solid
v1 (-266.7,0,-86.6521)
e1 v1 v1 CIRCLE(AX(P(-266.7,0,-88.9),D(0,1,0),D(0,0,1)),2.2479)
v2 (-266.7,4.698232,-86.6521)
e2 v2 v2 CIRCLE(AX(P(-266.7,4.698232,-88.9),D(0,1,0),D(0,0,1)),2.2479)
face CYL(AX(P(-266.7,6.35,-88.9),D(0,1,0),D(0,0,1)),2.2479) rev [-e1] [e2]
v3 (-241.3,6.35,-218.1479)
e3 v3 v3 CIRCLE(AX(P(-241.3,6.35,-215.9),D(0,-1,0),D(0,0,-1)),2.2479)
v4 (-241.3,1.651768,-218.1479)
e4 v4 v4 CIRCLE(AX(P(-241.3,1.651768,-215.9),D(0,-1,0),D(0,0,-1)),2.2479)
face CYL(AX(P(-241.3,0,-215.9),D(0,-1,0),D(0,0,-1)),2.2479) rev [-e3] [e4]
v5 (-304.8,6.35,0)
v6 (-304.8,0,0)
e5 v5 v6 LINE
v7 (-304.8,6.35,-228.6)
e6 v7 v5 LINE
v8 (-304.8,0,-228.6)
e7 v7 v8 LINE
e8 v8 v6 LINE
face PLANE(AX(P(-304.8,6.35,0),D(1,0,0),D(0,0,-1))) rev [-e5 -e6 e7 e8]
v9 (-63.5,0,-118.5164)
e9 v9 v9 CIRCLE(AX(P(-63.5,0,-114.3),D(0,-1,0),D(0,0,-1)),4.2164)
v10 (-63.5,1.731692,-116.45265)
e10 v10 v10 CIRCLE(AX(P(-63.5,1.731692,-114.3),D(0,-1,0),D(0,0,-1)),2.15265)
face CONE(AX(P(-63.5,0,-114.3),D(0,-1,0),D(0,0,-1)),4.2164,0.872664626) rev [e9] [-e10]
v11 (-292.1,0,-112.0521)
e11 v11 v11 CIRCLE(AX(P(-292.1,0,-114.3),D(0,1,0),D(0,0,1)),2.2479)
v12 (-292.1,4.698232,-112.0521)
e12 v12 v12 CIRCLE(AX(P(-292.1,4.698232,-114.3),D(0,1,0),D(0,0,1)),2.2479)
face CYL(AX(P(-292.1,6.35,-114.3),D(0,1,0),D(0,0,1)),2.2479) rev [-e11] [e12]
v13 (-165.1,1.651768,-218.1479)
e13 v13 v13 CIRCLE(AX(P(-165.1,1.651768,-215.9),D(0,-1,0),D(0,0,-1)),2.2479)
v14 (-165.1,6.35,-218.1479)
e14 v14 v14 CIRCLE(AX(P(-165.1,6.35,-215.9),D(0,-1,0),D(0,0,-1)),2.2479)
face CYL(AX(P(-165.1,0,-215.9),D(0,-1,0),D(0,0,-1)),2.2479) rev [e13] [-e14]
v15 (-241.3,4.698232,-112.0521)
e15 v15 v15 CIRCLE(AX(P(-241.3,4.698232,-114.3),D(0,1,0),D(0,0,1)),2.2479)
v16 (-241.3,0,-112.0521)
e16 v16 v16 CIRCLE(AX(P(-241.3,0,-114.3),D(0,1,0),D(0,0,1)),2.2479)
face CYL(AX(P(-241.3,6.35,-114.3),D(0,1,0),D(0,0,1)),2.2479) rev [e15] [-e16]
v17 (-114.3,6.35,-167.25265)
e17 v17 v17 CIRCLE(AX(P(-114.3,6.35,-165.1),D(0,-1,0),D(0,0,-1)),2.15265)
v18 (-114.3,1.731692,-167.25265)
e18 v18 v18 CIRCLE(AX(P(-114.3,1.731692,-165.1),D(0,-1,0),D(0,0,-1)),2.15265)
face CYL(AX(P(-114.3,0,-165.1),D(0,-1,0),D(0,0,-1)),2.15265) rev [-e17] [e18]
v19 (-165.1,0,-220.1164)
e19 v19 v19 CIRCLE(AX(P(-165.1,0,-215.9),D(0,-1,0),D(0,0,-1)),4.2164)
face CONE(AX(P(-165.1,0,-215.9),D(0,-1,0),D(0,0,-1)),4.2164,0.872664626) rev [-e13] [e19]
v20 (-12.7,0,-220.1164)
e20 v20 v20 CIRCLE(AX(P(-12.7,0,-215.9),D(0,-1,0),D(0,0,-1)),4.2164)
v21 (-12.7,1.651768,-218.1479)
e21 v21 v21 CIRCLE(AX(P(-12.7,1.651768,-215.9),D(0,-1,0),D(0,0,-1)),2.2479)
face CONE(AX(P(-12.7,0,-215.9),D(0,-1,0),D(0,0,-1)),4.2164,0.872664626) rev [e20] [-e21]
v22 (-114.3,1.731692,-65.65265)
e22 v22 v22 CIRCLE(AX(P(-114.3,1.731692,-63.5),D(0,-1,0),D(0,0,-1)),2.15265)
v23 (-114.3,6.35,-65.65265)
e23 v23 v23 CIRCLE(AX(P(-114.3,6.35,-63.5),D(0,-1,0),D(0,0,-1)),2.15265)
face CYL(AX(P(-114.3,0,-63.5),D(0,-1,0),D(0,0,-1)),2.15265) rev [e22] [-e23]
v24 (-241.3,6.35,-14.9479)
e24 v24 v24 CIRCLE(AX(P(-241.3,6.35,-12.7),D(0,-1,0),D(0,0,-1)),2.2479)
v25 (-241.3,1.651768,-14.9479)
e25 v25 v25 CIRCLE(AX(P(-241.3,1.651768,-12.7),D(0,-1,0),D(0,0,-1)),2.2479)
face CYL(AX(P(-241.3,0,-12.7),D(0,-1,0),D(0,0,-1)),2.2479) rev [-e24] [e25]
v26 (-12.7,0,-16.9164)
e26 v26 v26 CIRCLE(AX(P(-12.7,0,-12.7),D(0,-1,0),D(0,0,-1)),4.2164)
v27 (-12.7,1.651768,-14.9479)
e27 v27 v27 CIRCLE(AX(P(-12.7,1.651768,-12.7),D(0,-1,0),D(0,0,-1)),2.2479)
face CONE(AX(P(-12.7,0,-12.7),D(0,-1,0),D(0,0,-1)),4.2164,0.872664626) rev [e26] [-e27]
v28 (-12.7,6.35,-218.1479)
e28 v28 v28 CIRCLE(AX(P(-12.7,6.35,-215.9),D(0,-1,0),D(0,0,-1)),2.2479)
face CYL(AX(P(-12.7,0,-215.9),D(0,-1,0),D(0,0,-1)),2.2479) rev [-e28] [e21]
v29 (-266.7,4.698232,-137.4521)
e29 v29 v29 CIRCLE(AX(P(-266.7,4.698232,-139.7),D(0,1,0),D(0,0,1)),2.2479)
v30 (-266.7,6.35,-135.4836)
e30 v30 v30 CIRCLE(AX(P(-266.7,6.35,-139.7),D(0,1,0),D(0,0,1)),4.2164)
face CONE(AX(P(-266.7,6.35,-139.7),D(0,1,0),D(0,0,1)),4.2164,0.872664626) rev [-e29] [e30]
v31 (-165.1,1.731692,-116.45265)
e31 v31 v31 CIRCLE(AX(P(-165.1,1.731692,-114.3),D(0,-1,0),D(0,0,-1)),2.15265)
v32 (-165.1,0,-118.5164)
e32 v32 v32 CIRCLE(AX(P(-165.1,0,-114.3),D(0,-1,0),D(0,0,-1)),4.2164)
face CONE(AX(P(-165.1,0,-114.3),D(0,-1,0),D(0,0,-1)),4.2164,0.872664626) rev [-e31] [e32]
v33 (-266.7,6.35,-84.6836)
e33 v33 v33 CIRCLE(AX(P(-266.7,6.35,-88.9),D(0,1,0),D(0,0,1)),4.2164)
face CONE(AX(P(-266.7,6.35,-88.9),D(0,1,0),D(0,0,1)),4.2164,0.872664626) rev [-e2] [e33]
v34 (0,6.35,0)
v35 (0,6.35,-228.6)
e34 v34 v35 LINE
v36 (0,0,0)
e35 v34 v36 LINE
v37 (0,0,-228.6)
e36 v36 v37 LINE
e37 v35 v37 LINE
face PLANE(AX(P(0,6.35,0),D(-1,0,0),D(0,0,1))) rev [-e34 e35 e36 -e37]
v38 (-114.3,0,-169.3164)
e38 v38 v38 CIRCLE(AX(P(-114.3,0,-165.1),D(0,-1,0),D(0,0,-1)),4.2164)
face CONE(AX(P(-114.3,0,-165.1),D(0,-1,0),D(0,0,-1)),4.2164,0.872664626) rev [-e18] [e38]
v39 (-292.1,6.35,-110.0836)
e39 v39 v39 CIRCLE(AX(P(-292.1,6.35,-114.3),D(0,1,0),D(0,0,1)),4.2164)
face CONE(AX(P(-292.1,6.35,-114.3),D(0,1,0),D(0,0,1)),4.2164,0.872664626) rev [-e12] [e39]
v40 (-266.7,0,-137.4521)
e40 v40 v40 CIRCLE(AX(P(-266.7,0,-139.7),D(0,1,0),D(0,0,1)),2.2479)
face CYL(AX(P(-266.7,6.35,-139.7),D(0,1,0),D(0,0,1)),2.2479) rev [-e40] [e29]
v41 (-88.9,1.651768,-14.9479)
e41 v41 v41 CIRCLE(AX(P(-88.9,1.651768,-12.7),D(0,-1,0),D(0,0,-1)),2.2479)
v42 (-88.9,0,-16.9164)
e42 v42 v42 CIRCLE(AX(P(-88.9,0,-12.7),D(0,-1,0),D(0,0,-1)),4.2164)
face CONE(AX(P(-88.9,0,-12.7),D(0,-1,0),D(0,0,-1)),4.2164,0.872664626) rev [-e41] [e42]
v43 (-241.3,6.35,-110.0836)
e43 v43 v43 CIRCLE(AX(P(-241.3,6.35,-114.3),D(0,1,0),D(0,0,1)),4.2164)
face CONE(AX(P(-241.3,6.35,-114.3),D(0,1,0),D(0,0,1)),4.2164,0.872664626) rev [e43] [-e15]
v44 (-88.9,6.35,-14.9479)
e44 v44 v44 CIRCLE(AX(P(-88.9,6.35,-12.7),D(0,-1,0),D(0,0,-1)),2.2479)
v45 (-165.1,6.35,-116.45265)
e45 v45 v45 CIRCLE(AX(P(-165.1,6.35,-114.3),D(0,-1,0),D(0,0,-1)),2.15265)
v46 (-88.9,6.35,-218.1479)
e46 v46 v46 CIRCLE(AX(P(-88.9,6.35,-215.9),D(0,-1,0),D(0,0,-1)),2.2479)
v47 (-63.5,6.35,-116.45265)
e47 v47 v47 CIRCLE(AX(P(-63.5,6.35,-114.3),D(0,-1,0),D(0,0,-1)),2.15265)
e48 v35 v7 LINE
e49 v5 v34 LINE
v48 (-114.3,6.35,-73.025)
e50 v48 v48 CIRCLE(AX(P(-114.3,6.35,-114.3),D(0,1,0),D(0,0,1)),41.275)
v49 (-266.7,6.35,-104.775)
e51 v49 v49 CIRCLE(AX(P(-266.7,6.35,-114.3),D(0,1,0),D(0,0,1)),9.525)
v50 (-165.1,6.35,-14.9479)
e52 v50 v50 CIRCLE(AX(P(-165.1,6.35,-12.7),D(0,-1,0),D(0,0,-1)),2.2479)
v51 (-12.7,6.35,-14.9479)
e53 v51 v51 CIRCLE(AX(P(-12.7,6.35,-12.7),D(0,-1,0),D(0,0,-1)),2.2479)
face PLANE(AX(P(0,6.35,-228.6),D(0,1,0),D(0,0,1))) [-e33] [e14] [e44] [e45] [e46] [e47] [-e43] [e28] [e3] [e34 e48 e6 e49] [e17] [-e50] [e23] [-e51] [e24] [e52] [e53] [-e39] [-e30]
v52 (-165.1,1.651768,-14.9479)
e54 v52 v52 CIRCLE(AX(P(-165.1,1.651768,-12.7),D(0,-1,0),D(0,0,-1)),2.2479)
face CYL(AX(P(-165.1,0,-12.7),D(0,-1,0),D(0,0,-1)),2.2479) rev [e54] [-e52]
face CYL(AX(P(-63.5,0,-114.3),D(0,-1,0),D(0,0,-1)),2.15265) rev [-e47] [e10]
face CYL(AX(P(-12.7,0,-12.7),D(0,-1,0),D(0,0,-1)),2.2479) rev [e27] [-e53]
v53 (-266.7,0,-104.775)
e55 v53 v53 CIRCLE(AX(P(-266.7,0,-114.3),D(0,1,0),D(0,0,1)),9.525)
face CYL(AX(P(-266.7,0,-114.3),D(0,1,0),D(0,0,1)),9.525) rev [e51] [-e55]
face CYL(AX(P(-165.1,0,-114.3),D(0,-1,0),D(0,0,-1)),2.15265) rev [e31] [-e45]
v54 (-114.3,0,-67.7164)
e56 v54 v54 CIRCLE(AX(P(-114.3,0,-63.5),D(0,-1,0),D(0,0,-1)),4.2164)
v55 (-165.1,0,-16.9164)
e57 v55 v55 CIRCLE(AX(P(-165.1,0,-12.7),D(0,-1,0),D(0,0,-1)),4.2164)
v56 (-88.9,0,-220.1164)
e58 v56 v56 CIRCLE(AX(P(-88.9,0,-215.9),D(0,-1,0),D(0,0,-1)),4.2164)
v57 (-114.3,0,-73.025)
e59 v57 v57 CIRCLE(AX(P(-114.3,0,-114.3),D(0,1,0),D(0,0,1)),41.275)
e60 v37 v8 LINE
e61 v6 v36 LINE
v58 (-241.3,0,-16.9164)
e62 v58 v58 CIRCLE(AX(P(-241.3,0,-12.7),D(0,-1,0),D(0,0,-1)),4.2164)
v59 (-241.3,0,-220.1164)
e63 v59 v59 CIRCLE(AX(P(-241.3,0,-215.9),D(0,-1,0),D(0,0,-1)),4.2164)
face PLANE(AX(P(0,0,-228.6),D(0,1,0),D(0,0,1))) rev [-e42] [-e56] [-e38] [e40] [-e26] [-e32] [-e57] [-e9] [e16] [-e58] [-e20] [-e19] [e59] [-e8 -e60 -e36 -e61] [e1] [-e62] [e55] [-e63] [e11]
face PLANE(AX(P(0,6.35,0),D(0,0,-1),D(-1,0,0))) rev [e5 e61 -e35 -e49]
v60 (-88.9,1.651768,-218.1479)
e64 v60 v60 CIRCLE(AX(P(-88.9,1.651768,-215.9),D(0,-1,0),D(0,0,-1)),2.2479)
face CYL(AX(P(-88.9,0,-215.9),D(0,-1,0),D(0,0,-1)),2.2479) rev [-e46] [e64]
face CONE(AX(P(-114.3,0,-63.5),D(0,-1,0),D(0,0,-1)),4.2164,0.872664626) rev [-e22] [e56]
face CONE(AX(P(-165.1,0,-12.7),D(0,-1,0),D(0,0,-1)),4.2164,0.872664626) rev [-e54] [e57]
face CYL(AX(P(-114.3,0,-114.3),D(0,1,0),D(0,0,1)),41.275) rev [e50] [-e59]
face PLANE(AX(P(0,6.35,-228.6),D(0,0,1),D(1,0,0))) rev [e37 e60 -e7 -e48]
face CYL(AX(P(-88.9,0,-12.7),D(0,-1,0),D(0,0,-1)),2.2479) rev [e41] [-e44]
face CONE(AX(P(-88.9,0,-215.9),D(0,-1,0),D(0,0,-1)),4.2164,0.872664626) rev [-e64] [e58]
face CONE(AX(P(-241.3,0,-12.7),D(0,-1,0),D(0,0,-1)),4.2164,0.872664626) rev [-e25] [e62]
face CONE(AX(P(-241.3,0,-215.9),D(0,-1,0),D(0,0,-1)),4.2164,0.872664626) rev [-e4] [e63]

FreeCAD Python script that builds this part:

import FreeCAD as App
import Part
import Sketcher
from FreeCAD import Vector
Q = App.Units.Quantity

doc = App.newDocument("Part")
body = doc.addObject("PartDesign::Body", "Body")

# Sketch on XZ plane
sketch1 = body.newObject("Sketcher::SketchObject", "Sketch")
sketch1.AttachmentSupport = (doc.getObject("XZ_Plane"), [""])
sketch1.MapMode = "FlatFace"
sketch1.addGeometry([
    Part.LineSegment(Vector(-305, -229, 0), Vector(-305, 0, 0)),
    Part.LineSegment(Vector(-305, 0, 0), Vector(0, 0, 0)),
    Part.LineSegment(Vector(0, 0, 0), Vector(0, -229, 0)),
    Part.LineSegment(Vector(0, -229, 0), Vector(-305, -229, 0)),
], False)
sketch1.addConstraint([
    Sketcher.Constraint("Coincident", 0, 2, 1, 1),
    Sketcher.Constraint("Coincident", 1, 2, 2, 1),
    Sketcher.Constraint("Coincident", 2, 2, 3, 1),
    Sketcher.Constraint("Coincident", 3, 2, 0, 1),
    Sketcher.Constraint("Vertical", 0),
    Sketcher.Constraint("Horizontal", 1),
    Sketcher.Constraint("Vertical", 2),
    Sketcher.Constraint("Horizontal", 3),
    Sketcher.Constraint("Coincident", 1, 2, -1, 1),
    Sketcher.Constraint("DistanceX", 1, 1, 1, 2, Q("12 in")),
    Sketcher.Constraint("DistanceY", 0, 1, 0, 2, Q("9 in")),
])
pad1 = body.newObject("PartDesign::Pad", "Pad")
pad1.Profile = sketch1
pad1.Length = Q("0.25 in")
pad1.Reversed = True

# Sketch on XZ plane
sketch2 = body.newObject("Sketcher::SketchObject", "Sketch001")
sketch2.AttachmentSupport = (doc.getObject("XZ_Plane"), [""])
sketch2.MapMode = "FlatFace"
sketch2.addGeometry(Part.Circle(Vector(-114.3, -63.5, 0), Vector(0, 0, 1), 2.2), False)
sketch2.addConstraint([
    Sketcher.Constraint("Diameter", 0, Q("0.1695 in")),
    Sketcher.Constraint("DistanceX", 0, 3, -1, 1, Q("4.5 in")),
    Sketcher.Constraint("DistanceY", 0, 3, -1, 1, Q("2.5 in")),
])
doc.recompute()
hole = body.newObject("PartDesign::Hole", "Hole")
hole.Profile = sketch2
hole.ThreadType = "None"
hole.Diameter = Q("0.1695 in")
hole.DepthType = "ThroughAll"
hole.HoleCutType = "Countersink"
hole.HoleCutDiameter = Q("0.332 in")
hole.HoleCutCountersinkAngle = 100
doc.recompute()

datumline = body.newObject("PartDesign::Line", "DatumLine")
datumline.Placement = App.Placement(Vector(-114.3, 0, -114.3), App.Rotation(Vector(0, 0, 1), Vector(0, 1, 0)))
polarpattern = body.newObject("PartDesign::PolarPattern", "PolarPattern")
polarpattern.Originals = [hole]
polarpattern.Axis = (datumline, [""])
polarpattern.Angle = 360
polarpattern.Occurrences = 4
body.Tip = polarpattern

# Sketch on XZ plane
sketch3 = body.newObject("Sketcher::SketchObject", "Sketch002")
sketch3.AttachmentSupport = (doc.getObject("XZ_Plane"), [""])
sketch3.MapMode = "FlatFace"
sketch3.AttachmentOffset = App.Placement(Vector(0, 0, -0.25 * 25.4), App.Rotation())
sketch3.addGeometry(Part.Circle(Vector(-114, -114, 0), Vector(0, 0, 1), 41), False)
sketch3.addConstraint([
    Sketcher.Constraint("Diameter", 0, Q("3.25 in")),
    Sketcher.Constraint("DistanceX", 0, 3, -1, 1, Q("4.5 in")),
    Sketcher.Constraint("DistanceY", 0, 3, -1, 1, Q("4.5 in")),
])
pocket1 = body.newObject("PartDesign::Pocket", "Pocket")
pocket1.Profile = sketch3
pocket1.Type = "ThroughAll"
pocket1.Reversed = True

# Sketch on XZ plane
sketch4 = body.newObject("Sketcher::SketchObject", "Sketch003")
sketch4.AttachmentSupport = (doc.getObject("XZ_Plane"), [""])
sketch4.MapMode = "FlatFace"
sketch4.addGeometry([
    Part.Circle(Vector(-12.7, -12.7, 0), Vector(0, 0, 1), 2.2),
    Part.Circle(Vector(-12.7, -215.9, 0), Vector(0, 0, 1), 2.2),
], False)
sketch4.addConstraint([
    Sketcher.Constraint("Equal", 0, 1),
    Sketcher.Constraint("Vertical", 0, 3, 1, 3),
    Sketcher.Constraint("Diameter", 0, Q("0.177 in")),
    Sketcher.Constraint("DistanceY", 1, 3, 0, 3, Q("8 in")),
    Sketcher.Constraint("DistanceX", 0, 3, -1, 1, Q("0.5 in")),
    Sketcher.Constraint("DistanceY", 0, 3, -1, 1, Q("0.5 in")),
])
doc.recompute()
hole2 = body.newObject("PartDesign::Hole", "Hole001")
hole2.Profile = sketch4
hole2.ThreadType = "None"
hole2.Diameter = Q("0.177 in")
hole2.DepthType = "ThroughAll"
hole2.HoleCutType = "Countersink"
hole2.HoleCutDiameter = Q("0.332 in")
hole2.HoleCutCountersinkAngle = 100
doc.recompute()

linearpattern = body.newObject("PartDesign::LinearPattern", "LinearPattern")
linearpattern.Originals = [hole2]
linearpattern.Direction = (doc.getObject("X_Axis"), [""])
linearpattern.Mode = "offset"
linearpattern.Offset = Q("3 in")
linearpattern.Occurrences = 4
linearpattern.Reversed = True
body.Tip = linearpattern

# Sketch on XZ plane
sketch5 = body.newObject("Sketcher::SketchObject", "Sketch004")
sketch5.AttachmentSupport = (doc.getObject("XZ_Plane"), [""])
sketch5.MapMode = "FlatFace"
sketch5.AttachmentOffset = App.Placement(Vector(0, 0, -0.25 * 25.4), App.Rotation())
sketch5.addGeometry(Part.Circle(Vector(-267, -114, 0), Vector(0, 0, 1), 10), False)
sketch5.addConstraint([
    Sketcher.Constraint("Diameter", 0, Q("0.75 in")),
    Sketcher.Constraint("DistanceX", 0, 3, -1, 1, Q("10.5 in")),
    Sketcher.Constraint("DistanceY", 0, 3, -1, 1, Q("4.5 in")),
])
pocket2 = body.newObject("PartDesign::Pocket", "Pocket001")
pocket2.Profile = sketch5
pocket2.Type = "ThroughAll"
pocket2.Reversed = True

# Sketch on XZ plane
sketch6 = body.newObject("Sketcher::SketchObject", "Sketch005")
sketch6.AttachmentSupport = (doc.getObject("XZ_Plane"), [""])
sketch6.MapMode = "FlatFace"
sketch6.AttachmentOffset = App.Placement(Vector(0, 0, -0.25 * 25.4), App.Rotation())
sketch6.addGeometry(Part.Circle(Vector(-292.1, -114.3, 0), Vector(0, 0, 1), 2.2), False)
sketch6.addConstraint([
    Sketcher.Constraint("Diameter", 0, Q("0.177 in")),
    Sketcher.Constraint("DistanceX", 0, 3, -1, 1, Q("11.5 in")),
    Sketcher.Constraint("DistanceY", 0, 3, -1, 1, Q("4.5 in")),
])
doc.recompute()
hole3 = body.newObject("PartDesign::Hole", "Hole002")
hole3.Profile = sketch6
hole3.ThreadType = "None"
hole3.Diameter = Q("0.177 in")
hole3.DepthType = "ThroughAll"
hole3.HoleCutType = "Countersink"
hole3.HoleCutDiameter = Q("0.332 in")
hole3.HoleCutCountersinkAngle = 100
hole3.Reversed = True
doc.recompute()

datumline2 = body.newObject("PartDesign::Line", "DatumLine001")
datumline2.Placement = App.Placement(Vector(-266.7, 0, -114.3), App.Rotation(Vector(0, 0, 1), Vector(0, 1, 0)))
polarpattern2 = body.newObject("PartDesign::PolarPattern", "PolarPattern001")
polarpattern2.Originals = [hole3]
polarpattern2.Axis = (datumline2, [""])
polarpattern2.Angle = 360
polarpattern2.Occurrences = 4
body.Tip = polarpattern2

doc.recompute()
